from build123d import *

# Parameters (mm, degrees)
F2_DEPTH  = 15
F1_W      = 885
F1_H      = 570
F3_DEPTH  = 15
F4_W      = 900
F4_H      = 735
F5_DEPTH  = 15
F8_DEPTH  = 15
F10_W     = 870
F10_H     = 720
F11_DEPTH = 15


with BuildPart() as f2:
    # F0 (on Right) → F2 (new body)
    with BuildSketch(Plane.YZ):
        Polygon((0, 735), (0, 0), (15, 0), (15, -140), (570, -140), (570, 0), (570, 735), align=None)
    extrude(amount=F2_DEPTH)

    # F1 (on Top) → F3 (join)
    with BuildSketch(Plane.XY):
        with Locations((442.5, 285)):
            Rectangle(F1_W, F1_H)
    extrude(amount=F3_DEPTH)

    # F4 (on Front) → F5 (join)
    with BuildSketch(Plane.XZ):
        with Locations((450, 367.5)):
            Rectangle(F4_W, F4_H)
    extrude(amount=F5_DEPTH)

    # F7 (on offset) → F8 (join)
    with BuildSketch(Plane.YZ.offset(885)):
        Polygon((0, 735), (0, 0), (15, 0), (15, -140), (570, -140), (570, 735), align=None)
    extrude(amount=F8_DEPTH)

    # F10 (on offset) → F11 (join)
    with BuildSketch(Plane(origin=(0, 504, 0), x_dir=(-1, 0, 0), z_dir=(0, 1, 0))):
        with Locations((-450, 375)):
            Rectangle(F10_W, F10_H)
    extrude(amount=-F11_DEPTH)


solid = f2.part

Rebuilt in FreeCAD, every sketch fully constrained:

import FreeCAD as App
import Part
import Sketcher

V = App.Vector
Q = App.Units.Quantity

doc = App.newDocument("Part")
body = doc.addObject("PartDesign::Body", "Body")

sketch1 = body.newObject("Sketcher::SketchObject", "Sketch")
sketch1.AttachmentSupport = (doc.getObject("YZ_Plane"), [""])
sketch1.MapMode = "FlatFace"
sketch1.addGeometry([
    Part.LineSegment(V(0, 735, 0), V(0, 0, 0)),
    Part.LineSegment(V(0, 0, 0), V(15, 0, 0)),
    Part.LineSegment(V(15, 0, 0), V(15, -140, 0)),
    Part.LineSegment(V(15, -140, 0), V(570, -140, 0)),
    Part.LineSegment(V(570, -140, 0), V(570, 735, 0)),
    Part.LineSegment(V(570, 735, 0), V(0, 735, 0)),
], False)
sketch1.addConstraint([
    Sketcher.Constraint("Coincident", 0, 2, 1, 1),
    Sketcher.Constraint("Coincident", 1, 2, 2, 1),
    Sketcher.Constraint("Coincident", 2, 2, 3, 1),
    Sketcher.Constraint("Coincident", 3, 2, 4, 1),
    Sketcher.Constraint("Coincident", 4, 2, 5, 1),
    Sketcher.Constraint("Coincident", 5, 2, 0, 1),
    Sketcher.Constraint("Vertical", 0),
    Sketcher.Constraint("Horizontal", 1),
    Sketcher.Constraint("Vertical", 2),
    Sketcher.Constraint("Horizontal", 3),
    Sketcher.Constraint("Vertical", 4),
    Sketcher.Constraint("Horizontal", 5),
    Sketcher.Constraint("Coincident", 0, 2, -1, 1),
    Sketcher.Constraint("DistanceX", 1, 1, 1, 2, Q("15 mm")),
    Sketcher.Constraint("DistanceX", 3, 1, 3, 2, Q("555 mm")),
    Sketcher.Constraint("DistanceY", 0, 2, 0, 1, Q("735 mm")),
    Sketcher.Constraint("DistanceY", 2, 2, 2, 1, Q("140 mm")),
])
pad1 = body.newObject("PartDesign::Pad", "Pad")
pad1.Profile = sketch1
pad1.Length = 15

sketch2 = body.newObject("Sketcher::SketchObject", "Sketch001")
sketch2.AttachmentSupport = (doc.getObject("XY_Plane"), [""])
sketch2.MapMode = "FlatFace"
sketch2.addGeometry([
    Part.LineSegment(V(0, 570, 0), V(0, 0, 0)),
    Part.LineSegment(V(0, 0, 0), V(885, 0, 0)),
    Part.LineSegment(V(885, 0, 0), V(885, 570, 0)),
    Part.LineSegment(V(885, 570, 0), V(0, 570, 0)),
], False)
sketch2.addConstraint([
    Sketcher.Constraint("Coincident", 0, 2, 1, 1),
    Sketcher.Constraint("Coincident", 1, 2, 2, 1),
    Sketcher.Constraint("Coincident", 2, 2, 3, 1),
    Sketcher.Constraint("Coincident", 3, 2, 0, 1),
    Sketcher.Constraint("Vertical", 0),
    Sketcher.Constraint("Horizontal", 1),
    Sketcher.Constraint("Vertical", 2),
    Sketcher.Constraint("Horizontal", 3),
    Sketcher.Constraint("Coincident", 0, 2, -1, 1),
    Sketcher.Constraint("DistanceX", 1, 1, 1, 2, Q("885 mm")),
    Sketcher.Constraint("DistanceY", 0, 2, 0, 1, Q("570 mm")),
])
pad2 = body.newObject("PartDesign::Pad", "Pad001")
pad2.Profile = sketch2
pad2.Length = 15

sketch3 = body.newObject("Sketcher::SketchObject", "Sketch002")
sketch3.AttachmentSupport = (doc.getObject("XZ_Plane"), [""])
sketch3.MapMode = "FlatFace"
sketch3.addGeometry([
    Part.LineSegment(V(0, 735, 0), V(0, 0, 0)),
    Part.LineSegment(V(0, 0, 0), V(900, 0, 0)),
    Part.LineSegment(V(900, 0, 0), V(900, 735, 0)),
    Part.LineSegment(V(900, 735, 0), V(0, 735, 0)),
], False)
sketch3.addConstraint([
    Sketcher.Constraint("Coincident", 0, 2, 1, 1),
    Sketcher.Constraint("Coincident", 1, 2, 2, 1),
    Sketcher.Constraint("Coincident", 2, 2, 3, 1),
    Sketcher.Constraint("Coincident", 3, 2, 0, 1),
    Sketcher.Constraint("Vertical", 0),
    Sketcher.Constraint("Horizontal", 1),
    Sketcher.Constraint("Vertical", 2),
    Sketcher.Constraint("Horizontal", 3),
    Sketcher.Constraint("Coincident", 0, 2, -1, 1),
    Sketcher.Constraint("DistanceX", 1, 1, 1, 2, Q("900 mm")),
    Sketcher.Constraint("DistanceY", 0, 2, 0, 1, Q("735 mm")),
])
pad3 = body.newObject("PartDesign::Pad", "Pad002")
pad3.Profile = sketch3
pad3.Length = 15

sketch4 = body.newObject("Sketcher::SketchObject", "Sketch003")
sketch4.AttachmentSupport = (doc.getObject("YZ_Plane"), [""])
sketch4.MapMode = "FlatFace"
sketch4.AttachmentOffset = App.Placement(V(0, 0, 885), App.Rotation())
sketch4.addGeometry([
    Part.LineSegment(V(0, 735, 0), V(0, 0, 0)),
    Part.LineSegment(V(0, 0, 0), V(15, 0, 0)),
    Part.LineSegment(V(15, 0, 0), V(15, -140, 0)),
    Part.LineSegment(V(15, -140, 0), V(570, -140, 0)),
    Part.LineSegment(V(570, -140, 0), V(570, 735, 0)),
    Part.LineSegment(V(570, 735, 0), V(0, 735, 0)),
], False)
sketch4.addConstraint([
    Sketcher.Constraint("Coincident", 0, 2, 1, 1),
    Sketcher.Constraint("Coincident", 1, 2, 2, 1),
    Sketcher.Constraint("Coincident", 2, 2, 3, 1),
    Sketcher.Constraint("Coincident", 3, 2, 4, 1),
    Sketcher.Constraint("Coincident", 4, 2, 5, 1),
    Sketcher.Constraint("Coincident", 5, 2, 0, 1),
    Sketcher.Constraint("Vertical", 0),
    Sketcher.Constraint("Horizontal", 1),
    Sketcher.Constraint("Vertical", 2),
    Sketcher.Constraint("Horizontal", 3),
    Sketcher.Constraint("Vertical", 4),
    Sketcher.Constraint("Horizontal", 5),
    Sketcher.Constraint("Coincident", 0, 2, -1, 1),
    Sketcher.Constraint("DistanceX", 1, 1, 1, 2, Q("15 mm")),
    Sketcher.Constraint("DistanceX", 3, 1, 3, 2, Q("555 mm")),
    Sketcher.Constraint("DistanceY", 0, 2, 0, 1, Q("735 mm")),
    Sketcher.Constraint("DistanceY", 2, 2, 2, 1, Q("140 mm")),
])
pad4 = body.newObject("PartDesign::Pad", "Pad003")
pad4.Profile = sketch4
pad4.Length = 15

sketch5 = body.newObject("Sketcher::SketchObject", "Sketch004")
sketch5.AttachmentSupport = (doc.getObject("XZ_Plane"), [""])
sketch5.MapMode = "FlatFace"
sketch5.AttachmentOffset = App.Placement(V(0, 0, -504), App.Rotation())
sketch5.addGeometry([
    Part.LineSegment(V(885, 735, 0), V(885, 15, 0)),
    Part.LineSegment(V(885, 15, 0), V(15, 15, 0)),
    Part.LineSegment(V(15, 15, 0), V(15, 735, 0)),
    Part.LineSegment(V(15, 735, 0), V(885, 735, 0)),
], False)
sketch5.addConstraint([
    Sketcher.Constraint("Coincident", 0, 2, 1, 1),
    Sketcher.Constraint("Coincident", 1, 2, 2, 1),
    Sketcher.Constraint("Coincident", 2, 2, 3, 1),
    Sketcher.Constraint("Coincident", 3, 2, 0, 1),
    Sketcher.Constraint("Vertical", 0),
    Sketcher.Constraint("Horizontal", 1),
    Sketcher.Constraint("Vertical", 2),
    Sketcher.Constraint("Horizontal", 3),
    Sketcher.Constraint("DistanceX", 1, 2, 1, 1, Q("870 mm")),
    Sketcher.Constraint("DistanceY", 0, 2, 0, 1, Q("720 mm")),
    Sketcher.Constraint("DistanceX", -1, 1, 0, 2, Q("885 mm")),
    Sketcher.Constraint("DistanceY", -1, 1, 0, 2, Q("15 mm")),
])
pad5 = body.newObject("PartDesign::Pad", "Pad004")
pad5.Profile = sketch5
pad5.Length = 15

doc.recompute()
